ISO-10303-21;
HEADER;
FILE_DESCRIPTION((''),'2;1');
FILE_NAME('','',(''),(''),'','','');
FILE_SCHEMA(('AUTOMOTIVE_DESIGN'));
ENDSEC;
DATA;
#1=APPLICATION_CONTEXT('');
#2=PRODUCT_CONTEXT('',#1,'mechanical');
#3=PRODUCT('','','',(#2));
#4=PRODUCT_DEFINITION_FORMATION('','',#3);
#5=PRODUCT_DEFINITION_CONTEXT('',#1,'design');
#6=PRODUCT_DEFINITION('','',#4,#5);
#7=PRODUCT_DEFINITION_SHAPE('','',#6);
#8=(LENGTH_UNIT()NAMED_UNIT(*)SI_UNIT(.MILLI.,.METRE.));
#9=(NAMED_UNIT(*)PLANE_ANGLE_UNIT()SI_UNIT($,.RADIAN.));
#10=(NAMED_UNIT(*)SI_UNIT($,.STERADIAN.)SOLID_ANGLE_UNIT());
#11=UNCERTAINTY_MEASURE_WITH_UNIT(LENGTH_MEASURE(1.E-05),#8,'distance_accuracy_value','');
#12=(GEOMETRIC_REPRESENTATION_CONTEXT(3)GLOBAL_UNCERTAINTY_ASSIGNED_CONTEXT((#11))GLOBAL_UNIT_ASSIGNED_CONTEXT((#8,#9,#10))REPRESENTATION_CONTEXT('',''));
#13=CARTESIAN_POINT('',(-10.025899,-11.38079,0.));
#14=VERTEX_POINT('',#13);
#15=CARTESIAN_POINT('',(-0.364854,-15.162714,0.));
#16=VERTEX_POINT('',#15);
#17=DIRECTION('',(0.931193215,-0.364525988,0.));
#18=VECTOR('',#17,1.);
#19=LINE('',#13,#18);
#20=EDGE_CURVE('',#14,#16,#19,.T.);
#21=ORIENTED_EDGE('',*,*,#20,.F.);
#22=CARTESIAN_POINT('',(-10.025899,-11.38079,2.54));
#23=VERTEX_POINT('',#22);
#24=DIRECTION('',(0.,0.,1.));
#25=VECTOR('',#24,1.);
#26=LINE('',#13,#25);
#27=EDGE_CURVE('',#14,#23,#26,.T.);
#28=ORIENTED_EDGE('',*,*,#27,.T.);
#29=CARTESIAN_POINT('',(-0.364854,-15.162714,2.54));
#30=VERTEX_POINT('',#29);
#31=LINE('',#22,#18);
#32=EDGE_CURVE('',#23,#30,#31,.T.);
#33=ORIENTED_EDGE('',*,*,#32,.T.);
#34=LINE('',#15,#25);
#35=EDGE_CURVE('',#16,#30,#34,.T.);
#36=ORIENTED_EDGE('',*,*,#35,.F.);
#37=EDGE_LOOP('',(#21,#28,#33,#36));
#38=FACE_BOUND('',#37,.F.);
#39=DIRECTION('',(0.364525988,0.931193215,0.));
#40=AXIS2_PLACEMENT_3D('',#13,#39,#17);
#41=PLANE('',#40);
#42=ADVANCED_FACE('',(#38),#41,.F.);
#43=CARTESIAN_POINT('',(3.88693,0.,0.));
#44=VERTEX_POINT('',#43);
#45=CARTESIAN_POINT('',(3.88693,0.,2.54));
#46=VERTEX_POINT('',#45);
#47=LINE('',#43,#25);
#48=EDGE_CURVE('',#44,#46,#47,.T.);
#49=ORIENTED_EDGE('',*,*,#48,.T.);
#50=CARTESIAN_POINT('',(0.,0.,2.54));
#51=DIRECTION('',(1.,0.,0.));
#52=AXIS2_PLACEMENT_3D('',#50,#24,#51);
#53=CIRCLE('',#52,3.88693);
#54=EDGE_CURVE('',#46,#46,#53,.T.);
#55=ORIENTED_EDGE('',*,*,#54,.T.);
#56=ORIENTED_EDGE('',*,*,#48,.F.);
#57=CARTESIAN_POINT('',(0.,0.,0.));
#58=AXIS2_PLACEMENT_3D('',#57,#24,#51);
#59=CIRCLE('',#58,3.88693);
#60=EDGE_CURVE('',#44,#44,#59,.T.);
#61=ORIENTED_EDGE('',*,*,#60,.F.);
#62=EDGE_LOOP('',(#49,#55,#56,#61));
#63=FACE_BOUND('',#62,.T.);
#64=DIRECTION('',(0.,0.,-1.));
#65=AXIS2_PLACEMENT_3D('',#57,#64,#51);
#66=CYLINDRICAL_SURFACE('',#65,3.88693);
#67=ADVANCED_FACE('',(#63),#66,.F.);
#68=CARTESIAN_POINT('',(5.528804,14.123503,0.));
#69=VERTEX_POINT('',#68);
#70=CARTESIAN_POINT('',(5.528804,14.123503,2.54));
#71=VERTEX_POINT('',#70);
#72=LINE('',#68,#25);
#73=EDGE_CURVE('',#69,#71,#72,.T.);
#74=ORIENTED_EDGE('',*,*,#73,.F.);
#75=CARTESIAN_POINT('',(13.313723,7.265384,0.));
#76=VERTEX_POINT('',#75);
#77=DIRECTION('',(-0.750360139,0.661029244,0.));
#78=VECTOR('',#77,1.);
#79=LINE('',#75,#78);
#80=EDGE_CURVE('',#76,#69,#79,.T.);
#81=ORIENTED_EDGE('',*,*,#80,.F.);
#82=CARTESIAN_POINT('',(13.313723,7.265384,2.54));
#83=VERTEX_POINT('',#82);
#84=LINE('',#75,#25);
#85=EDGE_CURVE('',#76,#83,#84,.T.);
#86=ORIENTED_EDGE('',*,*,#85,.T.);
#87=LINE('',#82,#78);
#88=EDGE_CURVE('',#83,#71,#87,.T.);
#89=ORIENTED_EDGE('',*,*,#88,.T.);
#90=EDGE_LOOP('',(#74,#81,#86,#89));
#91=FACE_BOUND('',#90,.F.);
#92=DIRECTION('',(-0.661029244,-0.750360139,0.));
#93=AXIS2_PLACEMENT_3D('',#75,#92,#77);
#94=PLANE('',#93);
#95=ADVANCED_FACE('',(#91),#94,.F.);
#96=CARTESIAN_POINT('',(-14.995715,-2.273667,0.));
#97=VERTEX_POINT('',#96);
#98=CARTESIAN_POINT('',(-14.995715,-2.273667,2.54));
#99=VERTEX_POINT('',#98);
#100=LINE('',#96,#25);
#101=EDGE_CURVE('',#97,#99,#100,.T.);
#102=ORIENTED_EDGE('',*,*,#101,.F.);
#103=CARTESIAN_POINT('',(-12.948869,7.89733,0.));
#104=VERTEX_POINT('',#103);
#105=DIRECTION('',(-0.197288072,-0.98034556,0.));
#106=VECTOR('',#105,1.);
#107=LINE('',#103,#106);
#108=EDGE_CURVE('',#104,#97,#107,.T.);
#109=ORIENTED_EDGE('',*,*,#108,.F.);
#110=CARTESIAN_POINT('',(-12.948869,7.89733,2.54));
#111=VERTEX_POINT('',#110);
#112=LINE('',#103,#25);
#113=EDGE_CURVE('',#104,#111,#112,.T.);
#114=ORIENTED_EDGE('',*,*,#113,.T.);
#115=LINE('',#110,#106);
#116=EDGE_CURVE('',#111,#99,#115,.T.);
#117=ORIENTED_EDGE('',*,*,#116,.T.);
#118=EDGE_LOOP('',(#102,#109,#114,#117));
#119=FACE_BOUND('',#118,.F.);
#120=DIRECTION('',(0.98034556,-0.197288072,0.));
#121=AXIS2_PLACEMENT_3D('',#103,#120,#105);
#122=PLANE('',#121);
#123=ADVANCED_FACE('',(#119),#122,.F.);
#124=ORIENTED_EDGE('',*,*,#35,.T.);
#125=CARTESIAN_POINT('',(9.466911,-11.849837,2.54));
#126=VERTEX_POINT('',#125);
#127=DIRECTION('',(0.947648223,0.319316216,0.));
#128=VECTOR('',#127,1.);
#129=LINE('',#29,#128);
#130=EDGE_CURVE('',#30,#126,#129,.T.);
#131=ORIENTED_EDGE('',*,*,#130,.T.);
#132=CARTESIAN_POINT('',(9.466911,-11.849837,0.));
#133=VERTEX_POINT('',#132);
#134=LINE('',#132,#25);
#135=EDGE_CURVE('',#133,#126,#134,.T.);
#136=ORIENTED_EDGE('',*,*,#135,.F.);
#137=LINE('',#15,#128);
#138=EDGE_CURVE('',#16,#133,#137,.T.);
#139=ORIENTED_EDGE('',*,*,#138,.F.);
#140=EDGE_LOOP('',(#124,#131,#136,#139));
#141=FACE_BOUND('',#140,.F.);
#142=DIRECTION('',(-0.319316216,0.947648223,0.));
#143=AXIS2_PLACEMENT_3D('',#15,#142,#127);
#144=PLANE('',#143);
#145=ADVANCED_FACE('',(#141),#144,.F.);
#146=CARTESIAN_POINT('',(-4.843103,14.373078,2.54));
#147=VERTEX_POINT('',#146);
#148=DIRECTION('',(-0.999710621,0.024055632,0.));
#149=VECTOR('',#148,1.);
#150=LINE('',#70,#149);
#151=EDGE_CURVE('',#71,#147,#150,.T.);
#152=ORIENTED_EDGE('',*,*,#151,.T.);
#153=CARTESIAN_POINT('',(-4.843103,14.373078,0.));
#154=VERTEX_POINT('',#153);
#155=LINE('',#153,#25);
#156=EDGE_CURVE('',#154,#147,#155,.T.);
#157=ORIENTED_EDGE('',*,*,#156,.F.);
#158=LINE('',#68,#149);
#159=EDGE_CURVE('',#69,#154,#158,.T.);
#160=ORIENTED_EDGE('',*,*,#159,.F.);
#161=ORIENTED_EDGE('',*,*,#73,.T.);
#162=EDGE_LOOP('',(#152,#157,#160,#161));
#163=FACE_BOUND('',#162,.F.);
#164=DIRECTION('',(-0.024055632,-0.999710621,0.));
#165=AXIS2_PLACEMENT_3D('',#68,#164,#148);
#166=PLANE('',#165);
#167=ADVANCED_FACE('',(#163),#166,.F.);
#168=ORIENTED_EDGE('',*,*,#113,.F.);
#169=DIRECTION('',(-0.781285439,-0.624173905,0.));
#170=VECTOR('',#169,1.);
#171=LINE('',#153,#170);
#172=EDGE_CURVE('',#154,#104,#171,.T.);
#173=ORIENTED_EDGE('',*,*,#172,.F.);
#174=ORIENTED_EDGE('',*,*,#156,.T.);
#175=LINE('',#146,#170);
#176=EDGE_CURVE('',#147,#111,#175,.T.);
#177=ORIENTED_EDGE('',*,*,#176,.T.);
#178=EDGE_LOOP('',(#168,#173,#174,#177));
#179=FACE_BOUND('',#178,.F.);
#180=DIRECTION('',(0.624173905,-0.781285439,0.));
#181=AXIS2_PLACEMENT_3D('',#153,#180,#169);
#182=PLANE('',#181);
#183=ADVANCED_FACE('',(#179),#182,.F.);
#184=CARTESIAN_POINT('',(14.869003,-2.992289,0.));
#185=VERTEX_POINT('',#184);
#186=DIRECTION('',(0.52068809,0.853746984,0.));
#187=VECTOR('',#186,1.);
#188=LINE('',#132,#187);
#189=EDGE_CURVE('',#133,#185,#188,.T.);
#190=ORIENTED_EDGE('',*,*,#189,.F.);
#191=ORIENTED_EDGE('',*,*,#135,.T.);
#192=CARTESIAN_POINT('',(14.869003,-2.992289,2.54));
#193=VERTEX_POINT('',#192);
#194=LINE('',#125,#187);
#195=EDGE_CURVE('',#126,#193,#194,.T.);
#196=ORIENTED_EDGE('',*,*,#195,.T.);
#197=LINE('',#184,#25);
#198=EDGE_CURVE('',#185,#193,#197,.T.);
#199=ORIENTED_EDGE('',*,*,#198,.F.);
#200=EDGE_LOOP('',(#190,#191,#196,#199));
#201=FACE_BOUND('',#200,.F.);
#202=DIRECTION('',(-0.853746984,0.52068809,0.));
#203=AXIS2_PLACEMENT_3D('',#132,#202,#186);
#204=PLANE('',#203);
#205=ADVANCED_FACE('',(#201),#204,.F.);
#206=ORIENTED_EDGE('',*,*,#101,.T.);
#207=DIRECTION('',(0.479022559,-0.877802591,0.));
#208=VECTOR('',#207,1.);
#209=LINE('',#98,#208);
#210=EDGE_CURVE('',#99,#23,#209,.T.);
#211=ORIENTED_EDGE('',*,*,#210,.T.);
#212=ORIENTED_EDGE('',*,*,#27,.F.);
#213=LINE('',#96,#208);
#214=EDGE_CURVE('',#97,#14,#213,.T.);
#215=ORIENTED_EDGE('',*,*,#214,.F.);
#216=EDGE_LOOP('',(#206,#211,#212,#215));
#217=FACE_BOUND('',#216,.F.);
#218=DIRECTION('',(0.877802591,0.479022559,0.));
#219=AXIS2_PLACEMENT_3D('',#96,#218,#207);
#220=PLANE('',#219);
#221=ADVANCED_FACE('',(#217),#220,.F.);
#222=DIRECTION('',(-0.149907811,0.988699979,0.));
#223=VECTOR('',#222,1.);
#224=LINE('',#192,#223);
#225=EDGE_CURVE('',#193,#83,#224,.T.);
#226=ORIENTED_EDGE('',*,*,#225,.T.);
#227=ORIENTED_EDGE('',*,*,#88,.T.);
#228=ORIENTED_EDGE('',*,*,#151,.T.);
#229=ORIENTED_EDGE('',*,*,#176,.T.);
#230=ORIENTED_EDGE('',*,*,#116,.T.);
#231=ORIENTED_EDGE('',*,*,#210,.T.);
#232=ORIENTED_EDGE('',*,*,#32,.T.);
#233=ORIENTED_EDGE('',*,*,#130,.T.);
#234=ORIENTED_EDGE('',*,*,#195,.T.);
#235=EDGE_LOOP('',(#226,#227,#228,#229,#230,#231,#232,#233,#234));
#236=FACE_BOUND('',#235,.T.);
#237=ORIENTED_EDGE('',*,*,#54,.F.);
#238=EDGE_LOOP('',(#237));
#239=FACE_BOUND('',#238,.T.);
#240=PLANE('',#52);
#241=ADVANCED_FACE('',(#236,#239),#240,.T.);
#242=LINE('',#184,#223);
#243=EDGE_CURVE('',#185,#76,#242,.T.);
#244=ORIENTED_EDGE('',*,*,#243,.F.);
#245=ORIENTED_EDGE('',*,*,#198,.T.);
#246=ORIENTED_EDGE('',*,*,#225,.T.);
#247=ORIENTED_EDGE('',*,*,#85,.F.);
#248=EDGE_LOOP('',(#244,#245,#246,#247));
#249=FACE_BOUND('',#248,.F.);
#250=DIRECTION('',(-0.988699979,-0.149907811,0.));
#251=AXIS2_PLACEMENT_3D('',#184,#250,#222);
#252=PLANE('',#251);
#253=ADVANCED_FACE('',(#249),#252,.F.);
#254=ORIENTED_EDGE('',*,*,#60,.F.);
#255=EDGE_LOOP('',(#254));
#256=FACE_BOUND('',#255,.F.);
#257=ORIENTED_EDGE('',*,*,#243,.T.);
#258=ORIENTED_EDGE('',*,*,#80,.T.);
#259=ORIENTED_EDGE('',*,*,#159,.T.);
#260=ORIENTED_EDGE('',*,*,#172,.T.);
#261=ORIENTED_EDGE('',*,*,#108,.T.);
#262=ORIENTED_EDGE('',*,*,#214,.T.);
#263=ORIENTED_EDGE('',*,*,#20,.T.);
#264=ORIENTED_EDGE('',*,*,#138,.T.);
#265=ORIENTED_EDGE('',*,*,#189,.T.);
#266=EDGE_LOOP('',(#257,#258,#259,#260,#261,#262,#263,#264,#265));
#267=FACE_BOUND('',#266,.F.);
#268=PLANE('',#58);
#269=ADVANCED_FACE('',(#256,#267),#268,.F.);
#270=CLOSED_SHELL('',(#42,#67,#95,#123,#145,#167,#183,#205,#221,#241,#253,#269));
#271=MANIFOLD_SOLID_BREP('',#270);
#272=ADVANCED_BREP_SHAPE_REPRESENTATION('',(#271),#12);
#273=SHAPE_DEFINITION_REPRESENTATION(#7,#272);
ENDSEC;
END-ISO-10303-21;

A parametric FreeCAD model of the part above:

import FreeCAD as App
import Part
import Sketcher

V = App.Vector
Q = App.Units.Quantity

doc = App.newDocument("Part")
body = doc.addObject("PartDesign::Body", "Body")

# Sketch on XY plane
sketch1 = body.newObject("Sketcher::SketchObject", "Sketch")
sketch1.AttachmentSupport = (doc.getObject("XY_Plane"), [""])
sketch1.MapMode = "FlatFace"
sketch1.addGeometry([
    Part.LineSegment(V(-0.4, -15.2, 0), V(9.5, -11.8, 0)),  # 0
    Part.LineSegment(V(9.5, -11.8, 0), V(14.9, -3, 0)),  # 1
    Part.LineSegment(V(14.9, -3, 0), V(13.3, 7.3, 0)),  # 2
    Part.LineSegment(V(13.3, 7.3, 0), V(5.5, 14.1, 0)),  # 3
    Part.LineSegment(V(5.5, 14.1, 0), V(-4.8, 14.4, 0)),  # 4
    Part.LineSegment(V(-4.8, 14.4, 0), V(-12.9, 7.9, 0)),  # 5
    Part.LineSegment(V(-12.9, 7.9, 0), V(-15, -2.3, 0)),  # 6
    Part.LineSegment(V(-15, -2.3, 0), V(-10, -11.4, 0)),  # 7
    Part.LineSegment(V(-10, -11.4, 0), V(-0.4, -15.2, 0)),  # 8
    Part.Circle(V(0, 0, 0), V(0, 0, 1), 3.9),  # 9
], False)
sketch1.addConstraint([
    Sketcher.Constraint("Coincident", 0, 2, 1, 1),
    Sketcher.Constraint("Coincident", 1, 2, 2, 1),
    Sketcher.Constraint("Coincident", 2, 2, 3, 1),
    Sketcher.Constraint("Coincident", 3, 2, 4, 1),
    Sketcher.Constraint("Coincident", 4, 2, 5, 1),
    Sketcher.Constraint("Coincident", 5, 2, 6, 1),
    Sketcher.Constraint("Coincident", 6, 2, 7, 1),
    Sketcher.Constraint("Coincident", 7, 2, 8, 1),
    Sketcher.Constraint("Coincident", 8, 2, 0, 1),
    Sketcher.Constraint("Coincident", 9, 3, -1, 1),
    Sketcher.Constraint("Equal", 0, 1),
    Sketcher.Constraint("Equal", 1, 2),
    Sketcher.Constraint("Equal", 2, 3),
    Sketcher.Constraint("Equal", 3, 4),
    Sketcher.Constraint("Equal", 4, 5),
    Sketcher.Constraint("Equal", 5, 6),
    Sketcher.Constraint("Equal", 6, 7),
    Sketcher.Constraint("Equal", 7, 8),
    Sketcher.Constraint("Diameter", 9, 7.77386),
    Sketcher.Constraint("DistanceX", 7, 2, -1, 1, 10.025899),
    Sketcher.Constraint("DistanceX", 3, 2, 1, 2, 9.340199),
    Sketcher.Constraint("Distance", 0, 10.37491),
    Sketcher.Constraint("DistanceX", -1, 1, 0, 2, 9.466911),
    Sketcher.Constraint("DistanceY", 1, 2, -1, 1, 2.992289),
    Sketcher.Constraint("DistanceX", 5, 2, -1, 1, 12.948869),
    Sketcher.Constraint("DistanceY", -1, 1, 5, 2, 7.89733),
    Sketcher.Constraint("DistanceY", 7, 2, -1, 1, 11.38079),
    Sketcher.Constraint("DistanceX", 0, 2, 1, 2, 5.402092),
    Sketcher.Constraint("DistanceX", 2, 2, 1, 2, 1.55528),
])
pad1 = body.newObject("PartDesign::Pad", "Pad")
pad1.Profile = sketch1
pad1.Length = Q("0.1 in")

doc.recompute()
